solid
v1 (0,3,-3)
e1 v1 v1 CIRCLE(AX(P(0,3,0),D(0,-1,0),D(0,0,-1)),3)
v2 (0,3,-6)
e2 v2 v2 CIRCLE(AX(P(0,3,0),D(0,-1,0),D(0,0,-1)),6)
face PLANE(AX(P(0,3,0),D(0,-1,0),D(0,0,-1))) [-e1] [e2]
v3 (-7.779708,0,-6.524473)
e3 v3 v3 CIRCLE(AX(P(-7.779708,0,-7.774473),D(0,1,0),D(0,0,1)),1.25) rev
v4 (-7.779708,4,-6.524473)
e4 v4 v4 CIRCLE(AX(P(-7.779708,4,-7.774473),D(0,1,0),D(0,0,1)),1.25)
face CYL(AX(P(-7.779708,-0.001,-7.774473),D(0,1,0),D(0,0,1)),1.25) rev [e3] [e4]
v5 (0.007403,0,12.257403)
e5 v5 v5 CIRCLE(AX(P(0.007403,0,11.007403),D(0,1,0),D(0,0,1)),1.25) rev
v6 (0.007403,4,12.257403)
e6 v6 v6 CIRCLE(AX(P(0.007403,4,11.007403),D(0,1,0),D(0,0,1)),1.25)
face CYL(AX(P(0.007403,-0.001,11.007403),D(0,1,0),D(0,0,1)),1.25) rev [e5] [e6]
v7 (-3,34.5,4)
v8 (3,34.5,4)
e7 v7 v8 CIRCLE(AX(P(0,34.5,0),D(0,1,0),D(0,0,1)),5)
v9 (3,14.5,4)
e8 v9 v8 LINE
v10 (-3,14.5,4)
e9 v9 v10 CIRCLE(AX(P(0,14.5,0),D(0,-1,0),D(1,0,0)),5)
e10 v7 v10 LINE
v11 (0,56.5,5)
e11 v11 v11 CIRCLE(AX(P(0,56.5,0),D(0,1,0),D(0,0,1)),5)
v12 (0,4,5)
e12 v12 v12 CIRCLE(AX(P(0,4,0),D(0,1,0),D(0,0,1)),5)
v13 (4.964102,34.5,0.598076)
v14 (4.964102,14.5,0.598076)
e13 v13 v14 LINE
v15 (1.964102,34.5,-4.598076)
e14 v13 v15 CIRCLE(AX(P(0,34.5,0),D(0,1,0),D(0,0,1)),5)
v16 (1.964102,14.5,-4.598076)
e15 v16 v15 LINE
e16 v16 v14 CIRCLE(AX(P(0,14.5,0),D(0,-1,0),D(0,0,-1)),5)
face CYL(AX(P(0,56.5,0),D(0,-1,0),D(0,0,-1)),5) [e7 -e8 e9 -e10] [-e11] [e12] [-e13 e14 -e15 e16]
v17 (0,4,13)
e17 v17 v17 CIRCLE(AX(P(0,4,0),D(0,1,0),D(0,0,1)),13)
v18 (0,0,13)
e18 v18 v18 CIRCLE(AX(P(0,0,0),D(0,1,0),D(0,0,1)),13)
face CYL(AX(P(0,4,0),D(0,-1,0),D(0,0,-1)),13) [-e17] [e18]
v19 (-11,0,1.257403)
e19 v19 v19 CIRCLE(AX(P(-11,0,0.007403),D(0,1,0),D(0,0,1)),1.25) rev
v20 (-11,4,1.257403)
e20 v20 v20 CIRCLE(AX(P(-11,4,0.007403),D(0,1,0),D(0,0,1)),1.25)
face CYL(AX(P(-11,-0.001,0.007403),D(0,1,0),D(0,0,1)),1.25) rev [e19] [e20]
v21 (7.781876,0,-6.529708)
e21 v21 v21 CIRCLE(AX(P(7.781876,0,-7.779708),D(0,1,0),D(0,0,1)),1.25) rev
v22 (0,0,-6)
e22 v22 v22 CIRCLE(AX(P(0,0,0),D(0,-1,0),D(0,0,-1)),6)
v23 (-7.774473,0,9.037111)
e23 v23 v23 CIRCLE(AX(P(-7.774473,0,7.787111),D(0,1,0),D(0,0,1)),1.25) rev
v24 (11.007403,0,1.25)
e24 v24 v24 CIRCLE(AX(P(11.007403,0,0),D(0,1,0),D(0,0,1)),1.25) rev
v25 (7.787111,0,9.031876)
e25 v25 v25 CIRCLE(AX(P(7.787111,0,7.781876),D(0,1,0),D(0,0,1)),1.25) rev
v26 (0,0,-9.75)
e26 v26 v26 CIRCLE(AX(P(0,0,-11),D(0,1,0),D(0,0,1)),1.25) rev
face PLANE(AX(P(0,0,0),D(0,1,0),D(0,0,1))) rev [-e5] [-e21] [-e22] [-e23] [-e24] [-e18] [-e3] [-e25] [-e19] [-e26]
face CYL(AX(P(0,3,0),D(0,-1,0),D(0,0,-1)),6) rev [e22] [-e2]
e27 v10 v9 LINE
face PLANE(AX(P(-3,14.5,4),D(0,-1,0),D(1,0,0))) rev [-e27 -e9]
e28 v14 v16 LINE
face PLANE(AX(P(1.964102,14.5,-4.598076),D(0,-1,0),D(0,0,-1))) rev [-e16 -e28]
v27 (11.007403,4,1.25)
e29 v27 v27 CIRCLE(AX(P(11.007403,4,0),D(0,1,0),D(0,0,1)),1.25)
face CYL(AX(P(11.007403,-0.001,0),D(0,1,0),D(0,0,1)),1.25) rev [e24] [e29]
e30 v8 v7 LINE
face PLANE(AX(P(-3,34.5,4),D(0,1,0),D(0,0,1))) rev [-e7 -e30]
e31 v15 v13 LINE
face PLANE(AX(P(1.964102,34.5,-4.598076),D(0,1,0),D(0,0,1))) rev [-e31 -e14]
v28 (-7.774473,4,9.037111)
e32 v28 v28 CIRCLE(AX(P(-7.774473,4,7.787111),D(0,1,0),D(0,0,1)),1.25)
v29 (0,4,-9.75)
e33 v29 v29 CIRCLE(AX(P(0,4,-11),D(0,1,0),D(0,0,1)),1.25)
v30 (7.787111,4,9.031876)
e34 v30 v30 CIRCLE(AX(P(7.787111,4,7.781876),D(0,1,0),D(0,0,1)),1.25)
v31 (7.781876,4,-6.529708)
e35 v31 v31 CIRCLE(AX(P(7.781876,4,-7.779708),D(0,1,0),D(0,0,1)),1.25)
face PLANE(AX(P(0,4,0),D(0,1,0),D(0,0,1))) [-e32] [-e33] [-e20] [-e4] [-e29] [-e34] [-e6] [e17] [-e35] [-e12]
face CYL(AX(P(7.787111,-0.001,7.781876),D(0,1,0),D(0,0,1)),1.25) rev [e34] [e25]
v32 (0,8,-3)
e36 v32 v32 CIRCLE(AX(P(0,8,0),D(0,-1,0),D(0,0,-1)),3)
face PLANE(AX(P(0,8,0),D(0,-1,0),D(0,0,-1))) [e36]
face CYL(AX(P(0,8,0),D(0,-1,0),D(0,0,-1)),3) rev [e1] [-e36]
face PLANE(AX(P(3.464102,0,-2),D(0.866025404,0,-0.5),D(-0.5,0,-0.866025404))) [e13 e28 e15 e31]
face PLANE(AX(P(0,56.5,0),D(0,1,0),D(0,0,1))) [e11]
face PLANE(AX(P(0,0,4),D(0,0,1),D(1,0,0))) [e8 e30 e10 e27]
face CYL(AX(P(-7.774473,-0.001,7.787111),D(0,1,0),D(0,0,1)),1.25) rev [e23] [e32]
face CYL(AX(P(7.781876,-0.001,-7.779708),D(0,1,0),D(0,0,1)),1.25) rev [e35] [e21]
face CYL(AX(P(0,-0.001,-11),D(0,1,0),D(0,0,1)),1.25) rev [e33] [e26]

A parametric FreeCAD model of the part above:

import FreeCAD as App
import Part
import Sketcher
Q = App.Units.Quantity


def add_polygon(sketch, points):
    """Adds a closed chain of lines whose ends are joined by coincident constraints."""
    first, n = sketch.GeometryCount, len(points)
    for a, b in zip(points, points[1:] + points[:1]):
        sketch.addGeometry(Part.LineSegment(App.Vector(*a, 0), App.Vector(*b, 0)), False)
    for i in range(n):
        sketch.addConstraint(Sketcher.Constraint("Coincident", first + i, 2, first + (i + 1) % n, 1))

doc = App.newDocument("Part")
body = doc.addObject("PartDesign::Body", "Body")

sketch1 = body.newObject("Sketcher::SketchObject", "Sketch")
sketch1.AttachmentSupport = (doc.getObject("XZ_Plane"), [""])
sketch1.MapMode = "FlatFace"
sketch1.addGeometry(Part.Circle(App.Vector(0, 0, 0), App.Vector(0, 0, 1), 13), False)
sketch1.addConstraint(Sketcher.Constraint("Coincident", 0, 3, -1, 1))
sketch1.addConstraint(Sketcher.Constraint("Diameter", 0, Q("26 mm")))
pad1 = body.newObject("PartDesign::Pad", "Pad")
pad1.Profile = sketch1
pad1.Length = 4
pad1.Reversed = True

sketch2 = body.newObject("Sketcher::SketchObject", "Sketch001")
sketch2.AttachmentSupport = (doc.getObject("XZ_Plane"), [""])
sketch2.MapMode = "FlatFace"
sketch2.AttachmentOffset = App.Placement(App.Vector(0, 0, -4), App.Rotation())
sketch2.addGeometry(Part.Circle(App.Vector(0, 0, 0), App.Vector(0, 0, 1), 5), False)
sketch2.addConstraint(Sketcher.Constraint("Coincident", 0, 3, -1, 1))
sketch2.addConstraint(Sketcher.Constraint("Diameter", 0, Q("10 mm")))
pad2 = body.newObject("PartDesign::Pad", "Pad001")
pad2.Profile = sketch2
pad2.Length = 52.5
pad2.Reversed = True

sketch3 = body.newObject("Sketcher::SketchObject", "Sketch002")
sketch3.AttachmentSupport = (doc.getObject("XZ_Plane"), [""])
sketch3.MapMode = "FlatFace"
sketch3.AttachmentOffset = App.Placement(App.Vector(0, 0, -4), App.Rotation())
sketch3.addGeometry(Part.Circle(App.Vector(0, -11, 0), App.Vector(0, 0, 1), 1.2), False)
sketch3.addConstraint(Sketcher.Constraint("PointOnObject", 0, 3, -2))
sketch3.addConstraint(Sketcher.Constraint("Diameter", 0, Q("2.5 mm")))
sketch3.addConstraint(Sketcher.Constraint("DistanceY", 0, 3, -1, 1, Q("11 mm")))
pocket1 = body.newObject("PartDesign::Pocket", "Pocket")
pocket1.Profile = sketch3
pocket1.Type = "UpToFirst"
pocket1.Reversed = True

sketch4 = body.newObject("Sketcher::SketchObject", "Sketch003")
sketch4.AttachmentSupport = (doc.getObject("XZ_Plane"), [""])
sketch4.MapMode = "FlatFace"
sketch4.AttachmentOffset = App.Placement(App.Vector(0, 0, -4), App.Rotation())
sketch4.addGeometry(Part.Circle(App.Vector(7.8, -7.8, 0), App.Vector(0, 0, 1), 1.2), False)
sketch4.addConstraint(Sketcher.Constraint("Diameter", 0, Q("2.5 mm")))
sketch4.addConstraint(Sketcher.Constraint("DistanceX", -1, 1, 0, 3, Q("7.781876 mm")))
sketch4.addConstraint(Sketcher.Constraint("DistanceY", 0, 3, -1, 1, Q("7.779708 mm")))
pocket2 = body.newObject("PartDesign::Pocket", "Pocket001")
pocket2.Profile = sketch4
pocket2.Type = "UpToFirst"
pocket2.Reversed = True

sketch5 = body.newObject("Sketcher::SketchObject", "Sketch004")
sketch5.AttachmentSupport = (doc.getObject("XZ_Plane"), [""])
sketch5.MapMode = "FlatFace"
sketch5.AttachmentOffset = App.Placement(App.Vector(0, 0, -4), App.Rotation())
sketch5.addGeometry(Part.Circle(App.Vector(11, 0, 0), App.Vector(0, 0, 1), 1.2), False)
sketch5.addConstraint(Sketcher.Constraint("PointOnObject", 0, 3, -1))
sketch5.addConstraint(Sketcher.Constraint("Diameter", 0, Q("2.5 mm")))
sketch5.addConstraint(Sketcher.Constraint("DistanceX", -1, 1, 0, 3, Q("11.007403 mm")))
pocket3 = body.newObject("PartDesign::Pocket", "Pocket002")
pocket3.Profile = sketch5
pocket3.Type = "UpToFirst"
pocket3.Reversed = True

sketch6 = body.newObject("Sketcher::SketchObject", "Sketch005")
sketch6.AttachmentSupport = (doc.getObject("XZ_Plane"), [""])
sketch6.MapMode = "FlatFace"
sketch6.AttachmentOffset = App.Placement(App.Vector(0, 0, -4), App.Rotation())
sketch6.addGeometry(Part.Circle(App.Vector(7.8, 7.8, 0), App.Vector(0, 0, 1), 1.2), False)
sketch6.addConstraint(Sketcher.Constraint("Diameter", 0, Q("2.5 mm")))
sketch6.addConstraint(Sketcher.Constraint("DistanceX", -1, 1, 0, 3, Q("7.787111 mm")))
sketch6.addConstraint(Sketcher.Constraint("DistanceY", -1, 1, 0, 3, Q("7.781876 mm")))
pocket4 = body.newObject("PartDesign::Pocket", "Pocket003")
pocket4.Profile = sketch6
pocket4.Type = "UpToFirst"
pocket4.Reversed = True

sketch7 = body.newObject("Sketcher::SketchObject", "Sketch006")
sketch7.AttachmentSupport = (doc.getObject("XZ_Plane"), [""])
sketch7.MapMode = "FlatFace"
sketch7.AttachmentOffset = App.Placement(App.Vector(0, 0, -4), App.Rotation())
sketch7.addGeometry(Part.Circle(App.Vector(0, 11, 0), App.Vector(0, 0, 1), 1.2), False)
sketch7.addConstraint(Sketcher.Constraint("Diameter", 0, Q("2.5 mm")))
sketch7.addConstraint(Sketcher.Constraint("DistanceX", -1, 1, 0, 3, Q("0.007403 mm")))
sketch7.addConstraint(Sketcher.Constraint("DistanceY", -1, 1, 0, 3, Q("11.007403 mm")))
pocket5 = body.newObject("PartDesign::Pocket", "Pocket004")
pocket5.Profile = sketch7
pocket5.Type = "UpToFirst"
pocket5.Reversed = True

sketch8 = body.newObject("Sketcher::SketchObject", "Sketch007")
sketch8.AttachmentSupport = (doc.getObject("XZ_Plane"), [""])
sketch8.MapMode = "FlatFace"
sketch8.AttachmentOffset = App.Placement(App.Vector(0, 0, -4), App.Rotation())
sketch8.addGeometry(Part.Circle(App.Vector(-7.8, 7.8, 0), App.Vector(0, 0, 1), 1.2), False)
sketch8.addConstraint(Sketcher.Constraint("Diameter", 0, Q("2.5 mm")))
sketch8.addConstraint(Sketcher.Constraint("DistanceY", -1, 1, 0, 3, Q("7.787111 mm")))
sketch8.addConstraint(Sketcher.Constraint("DistanceX", 0, 3, -1, 1, Q("7.774473 mm")))
pocket6 = body.newObject("PartDesign::Pocket", "Pocket005")
pocket6.Profile = sketch8
pocket6.Type = "UpToFirst"
pocket6.Reversed = True

sketch9 = body.newObject("Sketcher::SketchObject", "Sketch008")
sketch9.AttachmentSupport = (doc.getObject("XZ_Plane"), [""])
sketch9.MapMode = "FlatFace"
sketch9.AttachmentOffset = App.Placement(App.Vector(0, 0, -4), App.Rotation())
sketch9.addGeometry(Part.Circle(App.Vector(-11, 0, 0), App.Vector(0, 0, 1), 1.2), False)
sketch9.addConstraint(Sketcher.Constraint("Diameter", 0, Q("2.5 mm")))
sketch9.addConstraint(Sketcher.Constraint("DistanceX", 0, 3, -1, 1, Q("11 mm")))
sketch9.addConstraint(Sketcher.Constraint("DistanceY", -1, 1, 0, 3, Q("0.007403 mm")))
pocket7 = body.newObject("PartDesign::Pocket", "Pocket006")
pocket7.Profile = sketch9
pocket7.Type = "UpToFirst"
pocket7.Reversed = True

sketch10 = body.newObject("Sketcher::SketchObject", "Sketch009")
sketch10.AttachmentSupport = (doc.getObject("XZ_Plane"), [""])
sketch10.MapMode = "FlatFace"
sketch10.AttachmentOffset = App.Placement(App.Vector(0, 0, -4), App.Rotation())
sketch10.addGeometry(Part.Circle(App.Vector(-7.8, -7.8, 0), App.Vector(0, 0, 1), 1.2), False)
sketch10.addConstraint(Sketcher.Constraint("Diameter", 0, Q("2.5 mm")))
sketch10.addConstraint(Sketcher.Constraint("DistanceX", 0, 3, -1, 1, Q("7.779708 mm")))
sketch10.addConstraint(Sketcher.Constraint("DistanceY", 0, 3, -1, 1, Q("7.774473 mm")))
pocket8 = body.newObject("PartDesign::Pocket", "Pocket007")
pocket8.Profile = sketch10
pocket8.Type = "UpToFirst"
pocket8.Reversed = True

sketch11 = body.newObject("Sketcher::SketchObject", "Sketch010")
sketch11.AttachmentSupport = (doc.getObject("XY_Plane"), [""])
sketch11.MapMode = "FlatFace"
sketch11.AttachmentOffset = App.Placement(App.Vector(0, 0, 5), App.Rotation())
add_polygon(sketch11, [(-3, 34), (-3, 14), (3, 14), (3, 34)])
sketch11.addConstraint(Sketcher.Constraint("Vertical", 0))
sketch11.addConstraint(Sketcher.Constraint("Horizontal", 1))
sketch11.addConstraint(Sketcher.Constraint("Vertical", 2))
sketch11.addConstraint(Sketcher.Constraint("Horizontal", 3))
sketch11.addConstraint(Sketcher.Constraint("DistanceX", 1, 1, 1, 2, Q("6 mm")))
sketch11.addConstraint(Sketcher.Constraint("DistanceY", 0, 2, 0, 1, Q("20 mm")))
sketch11.addConstraint(Sketcher.Constraint("DistanceX", 0, 2, -1, 1, Q("3 mm")))
sketch11.addConstraint(Sketcher.Constraint("DistanceY", -1, 1, 0, 2, Q("14.5 mm")))
pocket9 = body.newObject("PartDesign::Pocket", "Pocket008")
pocket9.Profile = sketch11
pocket9.Length = 1

sketch12 = body.newObject("Sketcher::SketchObject", "Sketch011")
sketch12.Placement = App.Placement(App.Vector(4.330127, 0, -2.5), App.Rotation(App.Vector(0, -1, 0), App.Vector(-0.5, 0, -0.866025404), App.Vector(0.866025404, 0, -0.5), "ZXY"))
add_polygon(sketch12, [(-34, 3), (-34, -3), (-14, -3), (-14, 3)])
sketch12.addConstraint(Sketcher.Constraint("Vertical", 0))
sketch12.addConstraint(Sketcher.Constraint("Horizontal", 1))
sketch12.addConstraint(Sketcher.Constraint("Vertical", 2))
sketch12.addConstraint(Sketcher.Constraint("Horizontal", 3))
sketch12.addConstraint(Sketcher.Constraint("DistanceX", 1, 1, 1, 2, Q("20 mm")))
sketch12.addConstraint(Sketcher.Constraint("DistanceY", 0, 2, 0, 1, Q("6 mm")))
sketch12.addConstraint(Sketcher.Constraint("DistanceY", 0, 2, -1, 1, Q("3 mm")))
sketch12.addConstraint(Sketcher.Constraint("DistanceX", 0, 2, -1, 1, Q("34.5 mm")))
pocket10 = body.newObject("PartDesign::Pocket", "Pocket009")
pocket10.Profile = sketch12
pocket10.Length = 1

sketch13 = body.newObject("Sketcher::SketchObject", "Sketch012")
sketch13.AttachmentSupport = (doc.getObject("XZ_Plane"), [""])
sketch13.MapMode = "FlatFace"
sketch13.addGeometry(Part.Circle(App.Vector(0, 0, 0), App.Vector(0, 0, 1), 6), False)
sketch13.addConstraint(Sketcher.Constraint("Coincident", 0, 3, -1, 1))
sketch13.addConstraint(Sketcher.Constraint("Diameter", 0, Q("12 mm")))
pocket11 = body.newObject("PartDesign::Pocket", "Pocket010")
pocket11.Profile = sketch13
pocket11.Length = 3

sketch14 = body.newObject("Sketcher::SketchObject", "Sketch013")
sketch14.AttachmentSupport = (doc.getObject("XZ_Plane"), [""])
sketch14.MapMode = "FlatFace"
sketch14.AttachmentOffset = App.Placement(App.Vector(0, 0, -3), App.Rotation())
sketch14.addGeometry(Part.Circle(App.Vector(0, 0, 0), App.Vector(0, 0, 1), 3), False)
sketch14.addConstraint(Sketcher.Constraint("Coincident", 0, 3, -1, 1))
sketch14.addConstraint(Sketcher.Constraint("Diameter", 0, Q("6 mm")))
pocket12 = body.newObject("PartDesign::Pocket", "Pocket011")
pocket12.Profile = sketch14
pocket12.Length = 5

doc.recompute()
